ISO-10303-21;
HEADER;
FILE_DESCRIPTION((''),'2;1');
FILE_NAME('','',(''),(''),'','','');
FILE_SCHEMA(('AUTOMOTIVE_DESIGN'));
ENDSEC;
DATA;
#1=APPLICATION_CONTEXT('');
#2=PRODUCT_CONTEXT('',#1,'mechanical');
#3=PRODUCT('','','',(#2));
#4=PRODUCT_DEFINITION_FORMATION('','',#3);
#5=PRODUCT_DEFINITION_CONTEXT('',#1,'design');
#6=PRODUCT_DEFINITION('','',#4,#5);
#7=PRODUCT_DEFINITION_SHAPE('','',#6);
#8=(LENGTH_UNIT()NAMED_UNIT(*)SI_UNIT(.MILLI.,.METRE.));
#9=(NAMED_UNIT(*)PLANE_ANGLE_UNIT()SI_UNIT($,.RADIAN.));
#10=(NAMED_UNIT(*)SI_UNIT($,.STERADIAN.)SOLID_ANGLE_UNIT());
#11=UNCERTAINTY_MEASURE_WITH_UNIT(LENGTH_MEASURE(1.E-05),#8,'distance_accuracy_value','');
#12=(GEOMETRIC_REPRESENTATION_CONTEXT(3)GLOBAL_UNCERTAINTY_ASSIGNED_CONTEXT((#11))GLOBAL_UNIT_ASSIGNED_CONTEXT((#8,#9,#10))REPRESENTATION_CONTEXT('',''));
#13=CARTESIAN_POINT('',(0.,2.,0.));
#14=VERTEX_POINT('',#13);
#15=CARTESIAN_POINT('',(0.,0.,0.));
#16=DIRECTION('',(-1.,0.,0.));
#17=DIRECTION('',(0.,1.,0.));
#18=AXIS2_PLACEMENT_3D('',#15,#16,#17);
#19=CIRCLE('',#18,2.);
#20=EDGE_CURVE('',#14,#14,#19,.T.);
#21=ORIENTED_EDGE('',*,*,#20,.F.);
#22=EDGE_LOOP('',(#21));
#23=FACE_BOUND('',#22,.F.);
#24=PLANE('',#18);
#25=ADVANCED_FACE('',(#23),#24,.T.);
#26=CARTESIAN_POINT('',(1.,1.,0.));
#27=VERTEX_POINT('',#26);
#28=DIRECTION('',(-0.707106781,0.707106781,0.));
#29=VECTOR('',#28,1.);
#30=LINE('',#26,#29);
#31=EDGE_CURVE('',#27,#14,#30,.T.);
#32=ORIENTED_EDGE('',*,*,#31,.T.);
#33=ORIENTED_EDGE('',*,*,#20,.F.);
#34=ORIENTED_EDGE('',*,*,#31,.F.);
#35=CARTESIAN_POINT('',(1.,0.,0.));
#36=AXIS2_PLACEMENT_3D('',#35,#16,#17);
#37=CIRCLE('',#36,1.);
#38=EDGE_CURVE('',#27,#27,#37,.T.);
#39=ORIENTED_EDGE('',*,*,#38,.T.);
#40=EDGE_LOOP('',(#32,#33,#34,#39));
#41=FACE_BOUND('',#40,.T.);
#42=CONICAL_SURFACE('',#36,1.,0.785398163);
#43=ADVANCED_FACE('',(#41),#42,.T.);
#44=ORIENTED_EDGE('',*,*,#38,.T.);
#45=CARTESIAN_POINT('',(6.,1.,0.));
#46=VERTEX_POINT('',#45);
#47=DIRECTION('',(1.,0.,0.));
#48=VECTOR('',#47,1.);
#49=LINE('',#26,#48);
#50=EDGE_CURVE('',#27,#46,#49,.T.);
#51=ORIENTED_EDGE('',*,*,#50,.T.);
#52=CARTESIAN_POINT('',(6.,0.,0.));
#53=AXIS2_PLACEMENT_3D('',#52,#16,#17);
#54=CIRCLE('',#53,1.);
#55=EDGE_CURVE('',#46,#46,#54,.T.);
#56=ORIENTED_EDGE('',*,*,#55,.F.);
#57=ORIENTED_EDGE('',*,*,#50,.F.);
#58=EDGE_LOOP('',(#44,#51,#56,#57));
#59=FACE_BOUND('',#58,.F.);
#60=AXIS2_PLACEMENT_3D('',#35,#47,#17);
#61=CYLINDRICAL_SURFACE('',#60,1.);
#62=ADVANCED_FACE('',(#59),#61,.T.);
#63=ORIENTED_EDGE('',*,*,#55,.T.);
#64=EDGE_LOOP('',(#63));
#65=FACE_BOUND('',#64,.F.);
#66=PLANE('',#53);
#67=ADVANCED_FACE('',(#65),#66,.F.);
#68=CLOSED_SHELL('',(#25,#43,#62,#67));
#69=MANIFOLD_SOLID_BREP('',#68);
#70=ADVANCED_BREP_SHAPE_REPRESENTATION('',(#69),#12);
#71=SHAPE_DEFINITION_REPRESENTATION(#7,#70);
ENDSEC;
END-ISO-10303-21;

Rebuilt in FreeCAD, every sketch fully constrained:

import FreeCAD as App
import Part
import Sketcher

V = App.Vector
Q = App.Units.Quantity

doc = App.newDocument("Part")
body = doc.addObject("PartDesign::Body", "Body")

# Sketch on XY plane
sketch1 = body.newObject("Sketcher::SketchObject", "Sketch")
sketch1.AttachmentSupport = (doc.getObject("XY_Plane"), [""])
sketch1.MapMode = "FlatFace"
sketch1.addGeometry(Part.LineSegment(V(0, 2, 0), V(0, 0, 0)), False)
sketch1.addGeometry(Part.LineSegment(V(0, 0, 0), V(6, 0, 0)), False)
sketch1.addGeometry(Part.LineSegment(V(6, 0, 0), V(6, 1, 0)), False)
sketch1.addGeometry(Part.LineSegment(V(6, 1, 0), V(1, 1, 0)), False)
sketch1.addGeometry(Part.LineSegment(V(1, 1, 0), V(0, 2, 0)), False)
sketch1.addConstraint(Sketcher.Constraint("Coincident", 0, 2, 1, 1))
sketch1.addConstraint(Sketcher.Constraint("Coincident", 1, 2, 2, 1))
sketch1.addConstraint(Sketcher.Constraint("Coincident", 2, 2, 3, 1))
sketch1.addConstraint(Sketcher.Constraint("Coincident", 3, 2, 4, 1))
sketch1.addConstraint(Sketcher.Constraint("Coincident", 4, 2, 0, 1))
sketch1.addConstraint(Sketcher.Constraint("Vertical", 0))
sketch1.addConstraint(Sketcher.Constraint("Horizontal", 1))
sketch1.addConstraint(Sketcher.Constraint("Vertical", 2))
sketch1.addConstraint(Sketcher.Constraint("Horizontal", 3))
sketch1.addConstraint(Sketcher.Constraint("Coincident", 0, 2, -1, 1))
sketch1.addConstraint(Sketcher.Constraint("DistanceX", 1, 1, 1, 2, Q("6 mm")))
sketch1.addConstraint(Sketcher.Constraint("DistanceY", 0, 2, 0, 1, Q("2 mm")))
sketch1.addConstraint(Sketcher.Constraint("DistanceY", 2, 1, 2, 2, Q("1 mm")))
sketch1.addConstraint(Sketcher.Constraint("DistanceX", -1, 1, 3, 2, Q("1 mm")))
revolution = body.newObject("PartDesign::Revolution", "Revolution")
revolution.Profile = sketch1
revolution.ReferenceAxis = (sketch1, ["H_Axis"])
revolution.Angle = 360

doc.recompute()
